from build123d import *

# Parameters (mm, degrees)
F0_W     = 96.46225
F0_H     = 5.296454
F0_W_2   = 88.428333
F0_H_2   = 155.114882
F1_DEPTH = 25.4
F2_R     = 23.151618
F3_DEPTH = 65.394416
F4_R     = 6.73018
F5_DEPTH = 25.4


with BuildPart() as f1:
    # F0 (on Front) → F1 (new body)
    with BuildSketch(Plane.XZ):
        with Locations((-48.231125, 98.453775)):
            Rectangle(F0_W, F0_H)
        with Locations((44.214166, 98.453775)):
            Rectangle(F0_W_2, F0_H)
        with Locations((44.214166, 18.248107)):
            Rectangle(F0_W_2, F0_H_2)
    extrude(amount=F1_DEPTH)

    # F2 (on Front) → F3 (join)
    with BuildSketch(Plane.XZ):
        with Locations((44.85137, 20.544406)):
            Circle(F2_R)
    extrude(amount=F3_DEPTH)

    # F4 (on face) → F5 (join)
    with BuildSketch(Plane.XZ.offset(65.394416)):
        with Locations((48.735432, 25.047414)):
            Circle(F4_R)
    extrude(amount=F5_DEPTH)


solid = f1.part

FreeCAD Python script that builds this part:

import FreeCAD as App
import Part
import Sketcher
Q = App.Units.Quantity


def add_polygon(sketch, points):
    """Adds a closed chain of lines whose ends are joined by coincident constraints."""
    first, n = sketch.GeometryCount, len(points)
    for a, b in zip(points, points[1:] + points[:1]):
        sketch.addGeometry(Part.LineSegment(App.Vector(*a, 0), App.Vector(*b, 0)), False)
    for i in range(n):
        sketch.addConstraint(Sketcher.Constraint("Coincident", first + i, 2, first + (i + 1) % n, 1))

doc = App.newDocument("Part")
body = doc.addObject("PartDesign::Body", "Body")

# Sketch on XZ plane
sketch1 = doc.addObject("Sketcher::SketchObject", "Sketch")
body.addObject(sketch1)
sketch1.AttachmentSupport = (doc.XZ_Plane, [""])
sketch1.MapMode = "FlatFace"
add_polygon(sketch1, [(-96.46225, 101.102002), (-96.46225, 95.805548), (0, 95.805548), (0, -59.309334), (88.428332, -59.309334), (88.428332, 101.102002)])  # lines 0-5
sketch1.addConstraint([
    Sketcher.Constraint("Vertical", 0),
    Sketcher.Constraint("Horizontal", 1),
    Sketcher.Constraint("Vertical", 2),
    Sketcher.Constraint("Horizontal", 3),
    Sketcher.Constraint("Vertical", 4),
    Sketcher.Constraint("Horizontal", 5),
    Sketcher.Constraint("PointOnObject", 1, 2, -2),
    Sketcher.Constraint("DistanceX", 1, 1, 1, 2, Q("96.462249 mm")),
    Sketcher.Constraint("DistanceY", 2, 2, 2, 1, Q("155.114882 mm")),
    Sketcher.Constraint("DistanceY", -1, 1, 4, 2, Q("101.102002 mm")),
    Sketcher.Constraint("DistanceX", 3, 1, 3, 2, Q("88.428333 mm")),
    Sketcher.Constraint("DistanceY", 0, 2, 0, 1, Q("5.296454 mm")),
])
pad1 = doc.addObject("PartDesign::Pad", "Pad")
body.addObject(pad1)
pad1.Profile = sketch1
pad1.Length = Q("1 in")

# Sketch on XZ plane
sketch2 = doc.addObject("Sketcher::SketchObject", "Sketch001")
body.addObject(sketch2)
sketch2.AttachmentSupport = (doc.XZ_Plane, [""])
sketch2.MapMode = "FlatFace"
sketch2.addGeometry(Part.Circle(App.Vector(44.85137, 20.544406, 0), App.Vector(0, 0, 1), 23.151618), False)
sketch2.addConstraint([
    Sketcher.Constraint("Diameter", 0, Q("46.303236 mm")),
    Sketcher.Constraint("DistanceX", -1, 1, 0, 3, Q("44.85137 mm")),
    Sketcher.Constraint("DistanceY", -1, 1, 0, 3, Q("20.544406 mm")),
])
pad2 = doc.addObject("PartDesign::Pad", "Pad001")
body.addObject(pad2)
pad2.Profile = sketch2
pad2.Length = 65.394416

# Sketch on XZ plane
sketch3 = doc.addObject("Sketcher::SketchObject", "Sketch002")
body.addObject(sketch3)
sketch3.AttachmentSupport = (doc.XZ_Plane, [""])
sketch3.MapMode = "FlatFace"
sketch3.AttachmentOffset = App.Placement(App.Vector(0, 0, 65.394416), App.Rotation())
sketch3.addGeometry(Part.Circle(App.Vector(48.735432, 25.047414, 0), App.Vector(0, 0, 1), 6.73018), False)
sketch3.addConstraint([
    Sketcher.Constraint("Diameter", 0, Q("13.46036 mm")),
    Sketcher.Constraint("DistanceX", -1, 1, 0, 3, Q("48.735432 mm")),
    Sketcher.Constraint("DistanceY", -1, 1, 0, 3, Q("25.047414 mm")),
])
pad3 = doc.addObject("PartDesign::Pad", "Pad002")
body.addObject(pad3)
pad3.Profile = sketch3
pad3.Length = Q("1 in")

doc.recompute()
